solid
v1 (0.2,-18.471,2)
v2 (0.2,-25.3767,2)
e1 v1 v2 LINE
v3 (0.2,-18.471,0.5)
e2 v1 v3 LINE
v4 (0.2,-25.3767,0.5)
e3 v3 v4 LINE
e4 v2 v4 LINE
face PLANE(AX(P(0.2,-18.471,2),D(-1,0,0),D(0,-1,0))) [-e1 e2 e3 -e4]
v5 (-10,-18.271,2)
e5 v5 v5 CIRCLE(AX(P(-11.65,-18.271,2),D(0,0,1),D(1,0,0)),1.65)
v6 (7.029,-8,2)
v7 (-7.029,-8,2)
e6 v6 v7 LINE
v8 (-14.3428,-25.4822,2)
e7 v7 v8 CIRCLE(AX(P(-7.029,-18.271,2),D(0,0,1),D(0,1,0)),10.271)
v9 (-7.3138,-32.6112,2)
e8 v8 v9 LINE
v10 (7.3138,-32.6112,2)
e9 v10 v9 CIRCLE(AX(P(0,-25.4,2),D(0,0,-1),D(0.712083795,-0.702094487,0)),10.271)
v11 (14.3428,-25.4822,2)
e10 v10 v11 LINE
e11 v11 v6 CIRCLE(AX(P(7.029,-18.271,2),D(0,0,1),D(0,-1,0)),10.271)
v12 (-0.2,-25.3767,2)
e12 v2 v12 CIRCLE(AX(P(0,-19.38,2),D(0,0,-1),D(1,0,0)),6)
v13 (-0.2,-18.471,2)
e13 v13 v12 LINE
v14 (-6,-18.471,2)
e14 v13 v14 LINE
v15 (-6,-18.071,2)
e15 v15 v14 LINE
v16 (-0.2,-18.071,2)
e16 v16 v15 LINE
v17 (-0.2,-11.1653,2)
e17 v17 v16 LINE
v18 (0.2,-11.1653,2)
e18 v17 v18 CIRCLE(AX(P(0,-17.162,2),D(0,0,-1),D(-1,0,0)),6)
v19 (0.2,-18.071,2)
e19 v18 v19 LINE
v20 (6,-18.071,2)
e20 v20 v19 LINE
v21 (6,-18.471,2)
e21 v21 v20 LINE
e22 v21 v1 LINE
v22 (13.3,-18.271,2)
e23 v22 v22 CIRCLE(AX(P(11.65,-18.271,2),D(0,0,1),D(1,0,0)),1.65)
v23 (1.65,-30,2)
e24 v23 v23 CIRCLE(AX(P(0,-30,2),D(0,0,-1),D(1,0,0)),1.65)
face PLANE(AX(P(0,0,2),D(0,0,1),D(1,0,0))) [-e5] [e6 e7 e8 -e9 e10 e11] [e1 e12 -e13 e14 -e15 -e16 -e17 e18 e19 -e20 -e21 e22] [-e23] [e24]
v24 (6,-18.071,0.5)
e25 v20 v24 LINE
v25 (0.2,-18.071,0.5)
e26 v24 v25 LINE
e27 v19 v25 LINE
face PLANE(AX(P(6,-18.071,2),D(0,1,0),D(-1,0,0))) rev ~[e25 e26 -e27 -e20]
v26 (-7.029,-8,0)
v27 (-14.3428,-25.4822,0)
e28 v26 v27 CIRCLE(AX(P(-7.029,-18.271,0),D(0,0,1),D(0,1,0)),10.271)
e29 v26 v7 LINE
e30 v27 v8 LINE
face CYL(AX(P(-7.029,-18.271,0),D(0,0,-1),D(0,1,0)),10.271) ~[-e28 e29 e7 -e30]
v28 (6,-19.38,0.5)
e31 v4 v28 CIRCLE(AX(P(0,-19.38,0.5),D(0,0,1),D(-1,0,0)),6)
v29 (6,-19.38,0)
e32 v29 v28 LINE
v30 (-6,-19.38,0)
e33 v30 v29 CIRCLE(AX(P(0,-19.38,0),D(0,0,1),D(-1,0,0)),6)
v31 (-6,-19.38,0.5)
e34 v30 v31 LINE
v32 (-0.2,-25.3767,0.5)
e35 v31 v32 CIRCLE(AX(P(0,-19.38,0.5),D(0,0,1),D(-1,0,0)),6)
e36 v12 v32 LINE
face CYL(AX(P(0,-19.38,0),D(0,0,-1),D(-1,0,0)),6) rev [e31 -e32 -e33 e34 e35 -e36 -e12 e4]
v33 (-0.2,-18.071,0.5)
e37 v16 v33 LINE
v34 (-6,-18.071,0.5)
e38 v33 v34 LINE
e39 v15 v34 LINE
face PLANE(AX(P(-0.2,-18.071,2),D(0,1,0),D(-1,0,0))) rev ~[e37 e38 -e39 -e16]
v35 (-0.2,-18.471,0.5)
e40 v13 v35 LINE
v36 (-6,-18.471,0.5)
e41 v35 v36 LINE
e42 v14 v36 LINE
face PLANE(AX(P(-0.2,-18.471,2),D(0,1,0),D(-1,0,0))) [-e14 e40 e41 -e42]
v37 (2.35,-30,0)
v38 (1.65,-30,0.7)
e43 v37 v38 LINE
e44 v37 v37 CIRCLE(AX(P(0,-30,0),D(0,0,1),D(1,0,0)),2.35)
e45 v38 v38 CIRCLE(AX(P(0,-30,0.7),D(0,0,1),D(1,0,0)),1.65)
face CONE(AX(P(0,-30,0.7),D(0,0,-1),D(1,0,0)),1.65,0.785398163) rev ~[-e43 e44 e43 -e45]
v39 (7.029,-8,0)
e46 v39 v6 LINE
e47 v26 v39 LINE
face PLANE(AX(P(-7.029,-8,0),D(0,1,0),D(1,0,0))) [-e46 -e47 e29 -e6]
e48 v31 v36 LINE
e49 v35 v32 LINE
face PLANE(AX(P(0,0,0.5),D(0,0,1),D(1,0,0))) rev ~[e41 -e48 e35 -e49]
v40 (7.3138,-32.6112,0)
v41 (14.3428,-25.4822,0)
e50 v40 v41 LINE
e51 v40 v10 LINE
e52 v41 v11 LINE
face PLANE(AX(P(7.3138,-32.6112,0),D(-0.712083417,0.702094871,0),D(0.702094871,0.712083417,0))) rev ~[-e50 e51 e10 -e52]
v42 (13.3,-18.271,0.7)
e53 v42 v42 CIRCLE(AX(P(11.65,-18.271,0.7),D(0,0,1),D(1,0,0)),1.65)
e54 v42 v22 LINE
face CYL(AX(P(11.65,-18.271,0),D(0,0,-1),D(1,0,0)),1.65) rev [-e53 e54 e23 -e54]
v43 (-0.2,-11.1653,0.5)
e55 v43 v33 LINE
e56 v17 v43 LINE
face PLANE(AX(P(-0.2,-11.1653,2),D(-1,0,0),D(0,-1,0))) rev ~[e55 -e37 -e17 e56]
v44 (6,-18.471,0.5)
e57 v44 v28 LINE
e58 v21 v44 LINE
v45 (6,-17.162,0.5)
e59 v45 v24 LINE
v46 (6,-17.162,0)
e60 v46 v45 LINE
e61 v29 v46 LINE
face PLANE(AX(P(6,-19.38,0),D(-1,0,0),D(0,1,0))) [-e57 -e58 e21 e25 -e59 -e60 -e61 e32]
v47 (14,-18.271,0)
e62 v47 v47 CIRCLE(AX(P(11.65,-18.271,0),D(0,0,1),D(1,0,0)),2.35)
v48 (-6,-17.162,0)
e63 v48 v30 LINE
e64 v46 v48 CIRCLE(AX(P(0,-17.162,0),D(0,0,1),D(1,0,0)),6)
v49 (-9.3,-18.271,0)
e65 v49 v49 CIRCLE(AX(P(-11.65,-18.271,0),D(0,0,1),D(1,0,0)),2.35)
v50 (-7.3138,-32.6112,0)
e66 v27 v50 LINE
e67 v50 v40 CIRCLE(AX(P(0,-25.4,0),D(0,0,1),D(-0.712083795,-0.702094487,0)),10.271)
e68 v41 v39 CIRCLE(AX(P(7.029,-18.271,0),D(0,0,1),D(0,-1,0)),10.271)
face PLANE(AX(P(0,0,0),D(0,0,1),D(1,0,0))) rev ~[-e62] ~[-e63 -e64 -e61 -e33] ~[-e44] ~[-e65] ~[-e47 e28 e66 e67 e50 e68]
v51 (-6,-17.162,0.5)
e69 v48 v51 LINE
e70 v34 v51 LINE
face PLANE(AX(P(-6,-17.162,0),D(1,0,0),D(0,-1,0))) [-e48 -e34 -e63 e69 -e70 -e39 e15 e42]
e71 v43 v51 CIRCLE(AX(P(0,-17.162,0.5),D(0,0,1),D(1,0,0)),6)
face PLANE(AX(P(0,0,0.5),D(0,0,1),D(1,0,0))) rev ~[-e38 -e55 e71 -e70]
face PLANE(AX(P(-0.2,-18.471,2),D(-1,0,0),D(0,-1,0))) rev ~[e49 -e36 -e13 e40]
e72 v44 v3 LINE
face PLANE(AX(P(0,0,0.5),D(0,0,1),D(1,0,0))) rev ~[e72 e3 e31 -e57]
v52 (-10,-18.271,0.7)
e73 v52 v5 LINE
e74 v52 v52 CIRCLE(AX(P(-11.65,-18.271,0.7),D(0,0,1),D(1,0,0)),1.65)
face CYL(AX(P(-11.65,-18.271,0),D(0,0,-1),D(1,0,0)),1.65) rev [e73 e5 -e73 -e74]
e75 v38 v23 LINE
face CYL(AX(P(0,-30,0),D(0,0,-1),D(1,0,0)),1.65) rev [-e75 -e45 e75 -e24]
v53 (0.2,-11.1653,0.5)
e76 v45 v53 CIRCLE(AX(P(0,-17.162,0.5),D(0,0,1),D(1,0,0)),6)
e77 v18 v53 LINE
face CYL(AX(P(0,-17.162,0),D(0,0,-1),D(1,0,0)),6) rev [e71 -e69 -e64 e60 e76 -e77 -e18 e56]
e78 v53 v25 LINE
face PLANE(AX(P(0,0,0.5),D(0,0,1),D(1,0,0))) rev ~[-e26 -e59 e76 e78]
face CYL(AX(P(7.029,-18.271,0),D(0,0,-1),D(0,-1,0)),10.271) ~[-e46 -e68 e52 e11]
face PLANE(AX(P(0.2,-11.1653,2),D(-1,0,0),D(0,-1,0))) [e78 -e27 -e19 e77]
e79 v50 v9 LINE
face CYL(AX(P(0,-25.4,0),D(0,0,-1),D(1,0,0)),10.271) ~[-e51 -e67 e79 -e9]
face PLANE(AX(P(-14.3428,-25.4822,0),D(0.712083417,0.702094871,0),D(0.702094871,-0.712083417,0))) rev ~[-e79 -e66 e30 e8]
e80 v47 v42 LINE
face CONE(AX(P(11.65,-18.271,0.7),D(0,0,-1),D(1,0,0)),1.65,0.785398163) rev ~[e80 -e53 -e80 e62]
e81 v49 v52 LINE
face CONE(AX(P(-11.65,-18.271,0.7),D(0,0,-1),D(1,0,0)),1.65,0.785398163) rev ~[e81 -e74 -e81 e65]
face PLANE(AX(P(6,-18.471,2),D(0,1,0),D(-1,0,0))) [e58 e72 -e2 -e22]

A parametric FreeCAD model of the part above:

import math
import FreeCAD as App
import Part
import Sketcher
from FreeCAD import Vector
Q = App.Units.Quantity


def edges_at(feature, points):
    """Names of the edges that pass closest to the given points."""
    edges = feature.Shape.Edges
    near = lambda p: min(range(len(edges)), key=lambda i: edges[i].distToShape(Part.Vertex(*p))[0])
    return sorted({f"Edge{near(p) + 1}" for p in points})

doc = App.newDocument("Part")
params = doc.addObject("Spreadsheet::Sheet", "Params")
for row, (alias, value) in enumerate([
    ("sketch1_radius", "6 mm"),
    ("sketch1_diameter", "3.3 mm"),
    ("pad1_length", "2 mm"),
    ("sketch2_radius", "6 mm"),
    ("pad2_length", "1.5 mm"),
    ("chamfer_size", "0.7 mm"),
], start=1):
    params.set(f"A{row}", alias)
    params.set(f"B{row}", "=" + value)
    params.setAlias(f"B{row}", alias)

body = doc.addObject("PartDesign::Body", "Body")

# Sketch on XY plane
sketch1 = body.newObject("Sketcher::SketchObject", "Sketch")
sketch1.AttachmentSupport = (doc.getObject("XY_Plane"), [""])
sketch1.MapMode = "FlatFace"
sketch1.addGeometry([
    Part.ArcOfCircle(Part.Circle(Vector(0, -25.4, 0), Vector(0, 0, 1), 10.3), math.radians(-135), math.radians(-45)),  # 0
    Part.LineSegment(Vector(7.3, -32.6, 0), Vector(14.3, -25.5, 0)),  # 1
    Part.ArcOfCircle(Part.Circle(Vector(7, -18.3, 0), Vector(0, 0, 1), 10.3), math.radians(-45), math.radians(90)),  # 2
    Part.LineSegment(Vector(7, -8, 0), Vector(-7, -8, 0)),  # 3
    Part.ArcOfCircle(Part.Circle(Vector(-7, -18.3, 0), Vector(0, 0, 1), 10.3), math.radians(90), math.radians(225)),  # 4
    Part.LineSegment(Vector(-14.3, -25.5, 0), Vector(-7.3, -32.6, 0)),  # 5
    Part.Circle(Vector(0, -30, 0), Vector(0, 0, 1), 1.6),  # 6
    Part.ArcOfCircle(Part.Circle(Vector(0, -17.2, 0), Vector(0, 0, 1), 6), math.radians(0), math.radians(180)),  # 7
    Part.LineSegment(Vector(6, -17.2, 0), Vector(6, -19.4, 0)),  # 8
    Part.ArcOfCircle(Part.Circle(Vector(0, -19.4, 0), Vector(0, 0, 1), 6), math.radians(180), math.radians(360)),  # 9
    Part.LineSegment(Vector(-6, -19.4, 0), Vector(-6, -17.2, 0)),  # 10
    Part.Circle(Vector(-11.7, -18.3, 0), Vector(0, 0, 1), 1.6),  # 11
    Part.Circle(Vector(11.7, -18.3, 0), Vector(0, 0, 1), 1.6),  # 12
], False)
sketch1.addConstraint([
    Sketcher.Constraint("Tangent", 0, 2, 1, 1),
    Sketcher.Constraint("Tangent", 1, 2, 2, 1),
    Sketcher.Constraint("Tangent", 2, 2, 3, 1),
    Sketcher.Constraint("Tangent", 3, 2, 4, 1),
    Sketcher.Constraint("Tangent", 4, 2, 5, 1),
    Sketcher.Constraint("Tangent", 5, 2, 0, 1),
    Sketcher.Constraint("Tangent", 7, 1, 8, 1),
    Sketcher.Constraint("Tangent", 8, 2, 9, 2),
    Sketcher.Constraint("Tangent", 9, 1, 10, 1),
    Sketcher.Constraint("Tangent", 10, 2, 7, 2),
    Sketcher.Constraint("Horizontal", 3),
    Sketcher.Constraint("Vertical", 8),
    Sketcher.Constraint("Vertical", 10),
    Sketcher.Constraint("Equal", 0, 2),
    Sketcher.Constraint("Equal", 2, 4),
    Sketcher.Constraint("Equal", 6, 11),
    Sketcher.Constraint("Equal", 11, 12),
    Sketcher.Constraint("Symmetric", 11, 3, 12, 3, -2),
    Sketcher.Constraint("Symmetric", 1, 2, 4, 2, -2),
    Sketcher.Constraint("PointOnObject", 6, 3, -2),
    Sketcher.Constraint("PointOnObject", 7, 3, -2),
    Sketcher.Constraint("Horizontal", 4, 3, 11, 3),
    Sketcher.Constraint("Radius", 7, Q("6 mm")),
    Sketcher.Constraint("Diameter", 6, Q("3.3 mm")),
    Sketcher.Constraint("DistanceY", 6, 3, -1, 1, Q("30 mm")),
    Sketcher.Constraint("DistanceY", 6, 3, 0, 3, Q("4.6 mm")),
    Sketcher.Constraint("DistanceY", 8, 2, 8, 1, Q("2.218 mm")),
    Sketcher.Constraint("DistanceY", 7, 3, -1, 1, Q("17.162 mm")),
    Sketcher.Constraint("DistanceY", 2, 2, -1, 1, Q("8 mm")),
    Sketcher.Constraint("Radius", 0, Q("10.271 mm")),
    Sketcher.Constraint("DistanceX", 3, 2, 3, 1, Q("14.058 mm")),
    Sketcher.Constraint("DistanceX", 11, 3, -1, 1, Q("11.65 mm")),
])
sketch1.setExpression("Constraints[22]", "Params.sketch1_radius")
sketch1.setExpression("Constraints[23]", "Params.sketch1_diameter")
pad1 = body.newObject("PartDesign::Pad", "Pad")
pad1.Profile = sketch1
pad1.setExpression("Length", "Params.pad1_length")

# Sketch on XY plane
sketch2 = body.newObject("Sketcher::SketchObject", "Sketch001")
sketch2.AttachmentSupport = (doc.getObject("XY_Plane"), [""])
sketch2.MapMode = "FlatFace"
sketch2.AttachmentOffset = App.Placement(Vector(0, 0, 2), App.Rotation())
sketch2.addGeometry([
    Part.LineSegment(Vector(6, -18.1, 0), Vector(6, -17.2, 0)),  # 0
    Part.ArcOfCircle(Part.Circle(Vector(0, -17.2, 0), Vector(0, 0, 1), 6), math.radians(0), math.radians(88)),  # 1
    Part.LineSegment(Vector(0.2, -11.2, 0), Vector(0.2, -18.1, 0)),  # 2
    Part.LineSegment(Vector(0.2, -18.1, 0), Vector(6, -18.1, 0)),  # 3
    Part.LineSegment(Vector(6, -19.4, 0), Vector(6, -18.5, 0)),  # 4
    Part.LineSegment(Vector(6, -18.5, 0), Vector(0.2, -18.5, 0)),  # 5
    Part.LineSegment(Vector(0.2, -18.5, 0), Vector(0.2, -25.4, 0)),  # 6
    Part.ArcOfCircle(Part.Circle(Vector(0, -19.4, 0), Vector(0, 0, 1), 6), math.radians(-88), math.radians(0)),  # 7
    Part.LineSegment(Vector(-0.2, -18.1, 0), Vector(-0.2, -11.2, 0)),  # 8
    Part.ArcOfCircle(Part.Circle(Vector(0, -17.2, 0), Vector(0, 0, 1), 6), math.radians(92), math.radians(180)),  # 9
    Part.LineSegment(Vector(-6, -17.2, 0), Vector(-6, -18.1, 0)),  # 10
    Part.LineSegment(Vector(-6, -18.1, 0), Vector(-0.2, -18.1, 0)),  # 11
    Part.LineSegment(Vector(-0.2, -25.4, 0), Vector(-0.2, -18.5, 0)),  # 12
    Part.LineSegment(Vector(-0.2, -18.5, 0), Vector(-6, -18.5, 0)),  # 13
    Part.LineSegment(Vector(-6, -18.5, 0), Vector(-6, -19.4, 0)),  # 14
    Part.ArcOfCircle(Part.Circle(Vector(0, -19.4, 0), Vector(0, 0, 1), 6), math.radians(180), math.radians(268)),  # 15
], False)
sketch2.addConstraint([
    Sketcher.Constraint("Tangent", 0, 2, 1, 1),
    Sketcher.Constraint("Coincident", 1, 2, 2, 1),
    Sketcher.Constraint("Coincident", 2, 2, 3, 1),
    Sketcher.Constraint("Coincident", 3, 2, 0, 1),
    Sketcher.Constraint("Coincident", 4, 2, 5, 1),
    Sketcher.Constraint("Coincident", 5, 2, 6, 1),
    Sketcher.Constraint("Coincident", 6, 2, 7, 1),
    Sketcher.Constraint("Tangent", 7, 2, 4, 1),
    Sketcher.Constraint("Coincident", 8, 2, 9, 1),
    Sketcher.Constraint("Tangent", 9, 2, 10, 1),
    Sketcher.Constraint("Coincident", 10, 2, 11, 1),
    Sketcher.Constraint("Coincident", 11, 2, 8, 1),
    Sketcher.Constraint("Coincident", 12, 2, 13, 1),
    Sketcher.Constraint("Coincident", 13, 2, 14, 1),
    Sketcher.Constraint("Tangent", 14, 2, 15, 1),
    Sketcher.Constraint("Coincident", 15, 2, 12, 1),
    Sketcher.Constraint("Vertical", 0),
    Sketcher.Constraint("Vertical", 2),
    Sketcher.Constraint("Horizontal", 3),
    Sketcher.Constraint("Vertical", 4),
    Sketcher.Constraint("Horizontal", 5),
    Sketcher.Constraint("Vertical", 6),
    Sketcher.Constraint("Vertical", 8),
    Sketcher.Constraint("Vertical", 10),
    Sketcher.Constraint("Horizontal", 11),
    Sketcher.Constraint("Vertical", 12),
    Sketcher.Constraint("Horizontal", 13),
    Sketcher.Constraint("Vertical", 14),
    Sketcher.Constraint("Coincident", 9, 3, 1, 3),
    Sketcher.Constraint("Coincident", 15, 3, 7, 3),
    Sketcher.Constraint("Equal", 1, 7),
    Sketcher.Constraint("Equal", 7, 9),
    Sketcher.Constraint("Equal", 9, 15),
    Sketcher.Constraint("Symmetric", 1, 2, 8, 2, -2),
    Sketcher.Constraint("Symmetric", 5, 2, 12, 2, -2),
    Sketcher.Constraint("PointOnObject", 7, 3, -2),
    Sketcher.Constraint("Horizontal", 3, 2, 10, 2),
    Sketcher.Constraint("Vertical", 2, 2, 5, 2),
    Sketcher.Constraint("Equal", 0, 4),
    Sketcher.Constraint("Radius", 1, Q("6 mm")),
    Sketcher.Constraint("DistanceY", 4, 2, 3, 2, Q("0.4 mm")),
    Sketcher.Constraint("DistanceX", 8, 2, 1, 2, Q("0.4 mm")),
    Sketcher.Constraint("DistanceY", 0, 1, 0, 2, Q("0.909 mm")),
    Sketcher.Constraint("DistanceY", 7, 3, -1, 1, Q("19.38 mm")),
])
sketch2.setExpression("Constraints[39]", "Params.sketch2_radius")
pad2 = body.newObject("PartDesign::Pad", "Pad001")
pad2.Profile = sketch2
pad2.setExpression("Length", "Params.pad2_length")
pad2.Reversed = True
doc.recompute()

chamfer = body.newObject("PartDesign::Chamfer", "Chamfer")
chamfer.Base = (pad2, edges_at(pad2, [
    (10, -18.271, 0),
    (-13.3, -18.271, 0),
    (-0.851, -31.414, 0),
    (0, -28.35, 0),
    (1.414, -29.149, 0),
]))
chamfer.setExpression("Size", "Params.chamfer_size")

doc.recompute()
